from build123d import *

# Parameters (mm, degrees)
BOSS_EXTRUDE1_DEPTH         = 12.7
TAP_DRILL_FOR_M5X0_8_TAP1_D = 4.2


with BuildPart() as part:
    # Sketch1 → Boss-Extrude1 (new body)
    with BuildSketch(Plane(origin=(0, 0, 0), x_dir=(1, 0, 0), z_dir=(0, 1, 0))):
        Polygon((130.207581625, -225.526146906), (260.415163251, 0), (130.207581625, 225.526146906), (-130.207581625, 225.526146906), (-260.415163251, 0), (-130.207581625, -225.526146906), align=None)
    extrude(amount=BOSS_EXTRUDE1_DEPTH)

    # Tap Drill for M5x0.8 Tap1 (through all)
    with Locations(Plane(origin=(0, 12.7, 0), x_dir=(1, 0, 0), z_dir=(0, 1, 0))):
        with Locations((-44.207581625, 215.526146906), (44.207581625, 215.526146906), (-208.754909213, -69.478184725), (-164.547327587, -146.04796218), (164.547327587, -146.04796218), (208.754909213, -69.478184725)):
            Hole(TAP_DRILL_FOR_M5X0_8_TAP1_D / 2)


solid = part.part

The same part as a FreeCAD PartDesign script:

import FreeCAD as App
import Part
import Sketcher
Q = App.Units.Quantity

doc = App.newDocument("Part")
body = doc.addObject("PartDesign::Body", "Body")

# Sketch on XZ plane
sketch1 = doc.addObject("Sketcher::SketchObject", "Sketch")
body.addObject(sketch1)
sketch1.AttachmentSupport = (doc.XZ_Plane, [""])
sketch1.MapMode = "FlatFace"
sketch1.addGeometry(Part.LineSegment(App.Vector(130, 226, 0), App.Vector(260, 0, 0)), False)
sketch1.addGeometry(Part.LineSegment(App.Vector(260, 0, 0), App.Vector(130, -226, 0)), False)
sketch1.addGeometry(Part.LineSegment(App.Vector(130, -226, 0), App.Vector(-130, -226, 0)), False)
sketch1.addGeometry(Part.LineSegment(App.Vector(-130, -226, 0), App.Vector(-260, 0, 0)), False)
sketch1.addGeometry(Part.LineSegment(App.Vector(-260, 0, 0), App.Vector(-130, 226, 0)), False)
sketch1.addGeometry(Part.LineSegment(App.Vector(-130, 226, 0), App.Vector(130, 226, 0)), False)
sketch1.addConstraint(Sketcher.Constraint("Coincident", 0, 2, 1, 1))
sketch1.addConstraint(Sketcher.Constraint("Coincident", 1, 2, 2, 1))
sketch1.addConstraint(Sketcher.Constraint("Coincident", 2, 2, 3, 1))
sketch1.addConstraint(Sketcher.Constraint("Coincident", 3, 2, 4, 1))
sketch1.addConstraint(Sketcher.Constraint("Coincident", 4, 2, 5, 1))
sketch1.addConstraint(Sketcher.Constraint("Coincident", 5, 2, 0, 1))
sketch1.addConstraint(Sketcher.Constraint("Horizontal", 2))
sketch1.addConstraint(Sketcher.Constraint("Horizontal", 5))
sketch1.addConstraint(Sketcher.Constraint("Symmetric", 0, 2, 3, 2, -1, 1))
sketch1.addConstraint(Sketcher.Constraint("Symmetric", 1, 2, 4, 2, -1, 1))
sketch1.addConstraint(Sketcher.Constraint("PointOnObject", 0, 2, -1))
sketch1.addConstraint(Sketcher.Constraint("Parallel", 0, 3))
sketch1.addConstraint(Sketcher.Constraint("Vertical", 2, 2, 4, 2))
sketch1.addConstraint(Sketcher.Constraint("Angle", 0, Q("-60 deg")))
sketch1.addConstraint(Sketcher.Constraint("DistanceX", 2, 2, 2, 1, Q("260.415163 mm")))
sketch1.addConstraint(Sketcher.Constraint("DistanceX", 1, 2, 0, 2, Q("130.207582 mm")))
pad1 = doc.addObject("PartDesign::Pad", "Pad")
body.addObject(pad1)
pad1.Profile = sketch1
pad1.Length = 12.7
pad1.Reversed = True

# Sketch on XZ plane
sketch2 = doc.addObject("Sketcher::SketchObject", "Sketch001")
body.addObject(sketch2)
sketch2.AttachmentSupport = (doc.XZ_Plane, [""])
sketch2.MapMode = "FlatFace"
sketch2.AttachmentOffset = App.Placement(App.Vector(0, 0, -12.7), App.Rotation())
sketch2.addGeometry(Part.Circle(App.Vector(-44.2, -215.5, 0), App.Vector(0, 0, 1), 2.1), False)
sketch2.addGeometry(Part.Circle(App.Vector(44.2, -215.5, 0), App.Vector(0, 0, 1), 2.1), False)
sketch2.addGeometry(Part.Circle(App.Vector(-208.8, 69.5, 0), App.Vector(0, 0, 1), 2.1), False)
sketch2.addGeometry(Part.Circle(App.Vector(-164.5, 146, 0), App.Vector(0, 0, 1), 2.1), False)
sketch2.addGeometry(Part.Circle(App.Vector(164.5, 146, 0), App.Vector(0, 0, 1), 2.1), False)
sketch2.addGeometry(Part.Circle(App.Vector(208.8, 69.5, 0), App.Vector(0, 0, 1), 2.1), False)
sketch2.addConstraint(Sketcher.Constraint("Equal", 0, 1))
sketch2.addConstraint(Sketcher.Constraint("Equal", 1, 2))
sketch2.addConstraint(Sketcher.Constraint("Equal", 2, 3))
sketch2.addConstraint(Sketcher.Constraint("Equal", 3, 4))
sketch2.addConstraint(Sketcher.Constraint("Equal", 4, 5))
sketch2.addConstraint(Sketcher.Constraint("Symmetric", 0, 3, 1, 3, -2))
sketch2.addConstraint(Sketcher.Constraint("Symmetric", 3, 3, 4, 3, -2))
sketch2.addConstraint(Sketcher.Constraint("Symmetric", 2, 3, 5, 3, -2))
sketch2.addConstraint(Sketcher.Constraint("Diameter", 0, Q("4.2 mm")))
sketch2.addConstraint(Sketcher.Constraint("DistanceX", 0, 3, -1, 1, Q("44.207582 mm")))
sketch2.addConstraint(Sketcher.Constraint("DistanceX", 2, 3, -1, 1, Q("208.754909 mm")))
sketch2.addConstraint(Sketcher.Constraint("DistanceY", 0, 3, 2, 3, Q("285.004332 mm")))
sketch2.addConstraint(Sketcher.Constraint("DistanceX", 2, 3, 3, 3, Q("44.207582 mm")))
sketch2.addConstraint(Sketcher.Constraint("DistanceY", 0, 3, 3, 3, Q("361.574109 mm")))
sketch2.addConstraint(Sketcher.Constraint("DistanceY", 0, 3, -1, 1, Q("215.526147 mm")))
doc.recompute()
hole = doc.addObject("PartDesign::Hole", "Hole")
body.addObject(hole)
hole.Profile = sketch2
hole.ThreadType = "None"
hole.Diameter = 4.2
hole.DepthType = "ThroughAll"
hole.Reversed = True

doc.recompute()
